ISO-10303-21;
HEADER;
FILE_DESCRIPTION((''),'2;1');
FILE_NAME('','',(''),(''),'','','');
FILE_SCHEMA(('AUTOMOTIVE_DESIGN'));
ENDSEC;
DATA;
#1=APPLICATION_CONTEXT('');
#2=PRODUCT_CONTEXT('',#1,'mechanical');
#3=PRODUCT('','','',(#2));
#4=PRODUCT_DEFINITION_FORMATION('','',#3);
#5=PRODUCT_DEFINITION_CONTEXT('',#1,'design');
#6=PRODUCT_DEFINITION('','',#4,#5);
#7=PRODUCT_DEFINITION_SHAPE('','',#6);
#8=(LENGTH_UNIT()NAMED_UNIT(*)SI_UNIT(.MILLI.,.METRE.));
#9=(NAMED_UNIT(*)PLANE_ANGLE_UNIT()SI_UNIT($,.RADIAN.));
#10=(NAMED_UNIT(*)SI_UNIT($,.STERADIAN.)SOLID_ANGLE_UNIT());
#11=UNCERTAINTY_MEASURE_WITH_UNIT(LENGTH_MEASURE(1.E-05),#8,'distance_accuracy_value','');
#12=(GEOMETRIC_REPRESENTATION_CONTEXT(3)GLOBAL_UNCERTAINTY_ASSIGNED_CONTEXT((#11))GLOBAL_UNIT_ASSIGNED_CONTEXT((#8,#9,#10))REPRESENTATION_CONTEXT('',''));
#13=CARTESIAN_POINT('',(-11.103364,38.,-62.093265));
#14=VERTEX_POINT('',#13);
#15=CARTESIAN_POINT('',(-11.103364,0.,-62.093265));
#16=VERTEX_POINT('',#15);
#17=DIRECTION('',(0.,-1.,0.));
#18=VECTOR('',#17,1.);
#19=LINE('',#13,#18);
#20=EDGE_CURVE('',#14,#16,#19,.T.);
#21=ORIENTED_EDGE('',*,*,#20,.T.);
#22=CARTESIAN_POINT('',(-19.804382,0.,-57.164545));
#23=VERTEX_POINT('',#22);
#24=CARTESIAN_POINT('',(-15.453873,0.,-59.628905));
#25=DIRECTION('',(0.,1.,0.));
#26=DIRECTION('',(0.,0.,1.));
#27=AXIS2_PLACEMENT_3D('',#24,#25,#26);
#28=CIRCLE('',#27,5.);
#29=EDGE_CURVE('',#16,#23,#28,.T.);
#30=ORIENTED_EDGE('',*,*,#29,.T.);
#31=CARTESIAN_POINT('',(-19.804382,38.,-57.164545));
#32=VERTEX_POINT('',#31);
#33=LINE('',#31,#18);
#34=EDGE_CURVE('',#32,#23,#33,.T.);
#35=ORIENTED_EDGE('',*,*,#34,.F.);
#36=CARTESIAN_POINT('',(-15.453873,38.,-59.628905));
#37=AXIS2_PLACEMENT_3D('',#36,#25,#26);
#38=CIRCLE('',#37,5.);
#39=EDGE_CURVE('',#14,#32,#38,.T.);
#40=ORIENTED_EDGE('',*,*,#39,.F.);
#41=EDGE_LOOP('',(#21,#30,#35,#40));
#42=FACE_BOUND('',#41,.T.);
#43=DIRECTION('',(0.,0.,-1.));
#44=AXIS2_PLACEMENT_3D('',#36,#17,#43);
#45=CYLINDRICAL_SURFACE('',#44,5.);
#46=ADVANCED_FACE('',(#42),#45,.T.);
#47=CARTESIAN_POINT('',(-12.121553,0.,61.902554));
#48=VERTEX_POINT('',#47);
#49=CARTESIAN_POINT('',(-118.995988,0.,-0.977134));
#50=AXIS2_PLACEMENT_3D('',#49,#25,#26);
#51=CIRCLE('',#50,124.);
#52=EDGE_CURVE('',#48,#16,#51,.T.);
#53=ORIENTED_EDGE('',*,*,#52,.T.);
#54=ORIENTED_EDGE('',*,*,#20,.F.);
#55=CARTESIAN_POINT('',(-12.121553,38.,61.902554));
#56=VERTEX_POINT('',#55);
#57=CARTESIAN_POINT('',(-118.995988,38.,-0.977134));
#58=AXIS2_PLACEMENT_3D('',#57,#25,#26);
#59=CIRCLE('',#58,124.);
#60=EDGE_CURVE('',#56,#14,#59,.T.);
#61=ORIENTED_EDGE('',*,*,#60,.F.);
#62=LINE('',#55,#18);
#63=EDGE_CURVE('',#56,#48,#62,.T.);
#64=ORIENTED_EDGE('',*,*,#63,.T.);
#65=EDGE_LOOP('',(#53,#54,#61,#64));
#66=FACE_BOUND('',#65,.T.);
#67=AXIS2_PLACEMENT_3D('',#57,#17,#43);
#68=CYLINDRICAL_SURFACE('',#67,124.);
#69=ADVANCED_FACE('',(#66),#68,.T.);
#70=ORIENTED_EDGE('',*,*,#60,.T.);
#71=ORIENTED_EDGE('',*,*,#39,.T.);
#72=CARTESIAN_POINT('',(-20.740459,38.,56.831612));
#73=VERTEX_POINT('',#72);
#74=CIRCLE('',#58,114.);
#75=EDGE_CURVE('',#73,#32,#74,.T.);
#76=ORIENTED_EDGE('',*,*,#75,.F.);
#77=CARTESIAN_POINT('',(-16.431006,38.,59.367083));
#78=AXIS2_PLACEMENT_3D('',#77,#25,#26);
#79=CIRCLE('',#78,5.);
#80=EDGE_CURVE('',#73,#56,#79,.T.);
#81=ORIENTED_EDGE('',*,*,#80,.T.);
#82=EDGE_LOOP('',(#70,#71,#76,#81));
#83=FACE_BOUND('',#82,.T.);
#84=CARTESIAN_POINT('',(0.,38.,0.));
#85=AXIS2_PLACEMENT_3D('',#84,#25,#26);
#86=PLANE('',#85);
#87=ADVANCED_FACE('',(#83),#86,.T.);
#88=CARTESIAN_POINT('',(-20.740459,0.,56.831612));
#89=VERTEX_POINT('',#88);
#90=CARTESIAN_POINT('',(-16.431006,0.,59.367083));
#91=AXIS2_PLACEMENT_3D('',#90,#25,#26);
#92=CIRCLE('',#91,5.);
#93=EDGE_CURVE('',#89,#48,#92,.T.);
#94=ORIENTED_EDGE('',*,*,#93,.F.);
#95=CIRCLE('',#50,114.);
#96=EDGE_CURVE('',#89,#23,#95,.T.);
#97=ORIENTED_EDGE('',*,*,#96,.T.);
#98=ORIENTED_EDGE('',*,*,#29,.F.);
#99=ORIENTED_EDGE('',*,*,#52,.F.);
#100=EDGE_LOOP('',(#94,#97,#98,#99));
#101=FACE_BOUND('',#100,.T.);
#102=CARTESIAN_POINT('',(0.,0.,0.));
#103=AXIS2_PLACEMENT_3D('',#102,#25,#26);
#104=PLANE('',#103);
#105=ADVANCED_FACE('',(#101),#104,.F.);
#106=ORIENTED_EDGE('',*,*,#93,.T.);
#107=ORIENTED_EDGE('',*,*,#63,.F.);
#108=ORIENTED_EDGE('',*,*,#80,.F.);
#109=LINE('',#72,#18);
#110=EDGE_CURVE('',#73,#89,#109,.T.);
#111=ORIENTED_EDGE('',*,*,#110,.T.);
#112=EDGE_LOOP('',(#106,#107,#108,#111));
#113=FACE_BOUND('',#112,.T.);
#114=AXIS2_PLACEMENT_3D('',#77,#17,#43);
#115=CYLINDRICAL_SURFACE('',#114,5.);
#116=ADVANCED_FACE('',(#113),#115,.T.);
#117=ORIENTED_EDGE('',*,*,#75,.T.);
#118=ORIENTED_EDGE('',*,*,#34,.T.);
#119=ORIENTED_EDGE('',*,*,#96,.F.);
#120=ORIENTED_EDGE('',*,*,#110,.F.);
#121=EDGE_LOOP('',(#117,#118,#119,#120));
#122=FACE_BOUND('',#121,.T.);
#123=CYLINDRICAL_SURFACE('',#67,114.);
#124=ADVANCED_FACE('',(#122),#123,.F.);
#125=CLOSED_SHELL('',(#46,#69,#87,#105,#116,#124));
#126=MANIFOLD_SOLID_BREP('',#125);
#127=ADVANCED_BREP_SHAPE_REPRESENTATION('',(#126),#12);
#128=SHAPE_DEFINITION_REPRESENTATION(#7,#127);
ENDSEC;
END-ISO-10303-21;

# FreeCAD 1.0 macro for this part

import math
import FreeCAD as App
import Part
import Sketcher
Q = App.Units.Quantity

doc = App.newDocument("Part")
body = doc.addObject("PartDesign::Body", "Body")

# Sketch on XZ plane
sketch1 = body.newObject("Sketcher::SketchObject", "Sketch")
sketch1.AttachmentSupport = (doc.getObject("XZ_Plane"), [""])
sketch1.MapMode = "FlatFace"
sketch1.addGeometry([
    Part.ArcOfCircle(Part.Circle(App.Vector(-118.995988, -0.977134, 0), App.Vector(0, 0, 1), 124), math.radians(-29.529527), math.radians(30.470473)),
    Part.ArcOfCircle(Part.Circle(App.Vector(-15.453873, -59.628905, 0), App.Vector(0, 0, 1), 5), math.radians(150.470473), math.radians(330.470473)),
    Part.ArcOfCircle(Part.Circle(App.Vector(-118.995988, -0.977134, 0), App.Vector(0, 0, 1), 114), math.radians(-29.529527), math.radians(30.470473)),
    Part.ArcOfCircle(Part.Circle(App.Vector(-16.431006, 59.367083, 0), App.Vector(0, 0, 1), 5), math.radians(30.470473), math.radians(210.470473)),
], False)
sketch1.addConstraint([
    Sketcher.Constraint("Tangent", 0, 1, 1, 2),
    Sketcher.Constraint("Tangent", 1, 1, 2, 1),
    Sketcher.Constraint("Tangent", 2, 2, 3, 2),
    Sketcher.Constraint("Tangent", 3, 1, 0, 2),
    Sketcher.Constraint("Coincident", 2, 3, 0, 3),
    Sketcher.Constraint("Radius", 0, Q("124 mm")),
    Sketcher.Constraint("Radius", 1, Q("5 mm")),
    Sketcher.Constraint("DistanceY", 1, 1, 3, 1, Q("119.067099 mm")),
    Sketcher.Constraint("DistanceX", 0, 3, -1, 1, Q("118.995988 mm")),
    Sketcher.Constraint("DistanceX", 1, 1, -1, 1, Q("19.804382 mm")),
    Sketcher.Constraint("DistanceY", -1, 1, 2, 2, Q("56.831612 mm")),
])
pad1 = body.newObject("PartDesign::Pad", "Pad")
pad1.Profile = sketch1
pad1.Length = 38
pad1.Reversed = True

doc.recompute()
